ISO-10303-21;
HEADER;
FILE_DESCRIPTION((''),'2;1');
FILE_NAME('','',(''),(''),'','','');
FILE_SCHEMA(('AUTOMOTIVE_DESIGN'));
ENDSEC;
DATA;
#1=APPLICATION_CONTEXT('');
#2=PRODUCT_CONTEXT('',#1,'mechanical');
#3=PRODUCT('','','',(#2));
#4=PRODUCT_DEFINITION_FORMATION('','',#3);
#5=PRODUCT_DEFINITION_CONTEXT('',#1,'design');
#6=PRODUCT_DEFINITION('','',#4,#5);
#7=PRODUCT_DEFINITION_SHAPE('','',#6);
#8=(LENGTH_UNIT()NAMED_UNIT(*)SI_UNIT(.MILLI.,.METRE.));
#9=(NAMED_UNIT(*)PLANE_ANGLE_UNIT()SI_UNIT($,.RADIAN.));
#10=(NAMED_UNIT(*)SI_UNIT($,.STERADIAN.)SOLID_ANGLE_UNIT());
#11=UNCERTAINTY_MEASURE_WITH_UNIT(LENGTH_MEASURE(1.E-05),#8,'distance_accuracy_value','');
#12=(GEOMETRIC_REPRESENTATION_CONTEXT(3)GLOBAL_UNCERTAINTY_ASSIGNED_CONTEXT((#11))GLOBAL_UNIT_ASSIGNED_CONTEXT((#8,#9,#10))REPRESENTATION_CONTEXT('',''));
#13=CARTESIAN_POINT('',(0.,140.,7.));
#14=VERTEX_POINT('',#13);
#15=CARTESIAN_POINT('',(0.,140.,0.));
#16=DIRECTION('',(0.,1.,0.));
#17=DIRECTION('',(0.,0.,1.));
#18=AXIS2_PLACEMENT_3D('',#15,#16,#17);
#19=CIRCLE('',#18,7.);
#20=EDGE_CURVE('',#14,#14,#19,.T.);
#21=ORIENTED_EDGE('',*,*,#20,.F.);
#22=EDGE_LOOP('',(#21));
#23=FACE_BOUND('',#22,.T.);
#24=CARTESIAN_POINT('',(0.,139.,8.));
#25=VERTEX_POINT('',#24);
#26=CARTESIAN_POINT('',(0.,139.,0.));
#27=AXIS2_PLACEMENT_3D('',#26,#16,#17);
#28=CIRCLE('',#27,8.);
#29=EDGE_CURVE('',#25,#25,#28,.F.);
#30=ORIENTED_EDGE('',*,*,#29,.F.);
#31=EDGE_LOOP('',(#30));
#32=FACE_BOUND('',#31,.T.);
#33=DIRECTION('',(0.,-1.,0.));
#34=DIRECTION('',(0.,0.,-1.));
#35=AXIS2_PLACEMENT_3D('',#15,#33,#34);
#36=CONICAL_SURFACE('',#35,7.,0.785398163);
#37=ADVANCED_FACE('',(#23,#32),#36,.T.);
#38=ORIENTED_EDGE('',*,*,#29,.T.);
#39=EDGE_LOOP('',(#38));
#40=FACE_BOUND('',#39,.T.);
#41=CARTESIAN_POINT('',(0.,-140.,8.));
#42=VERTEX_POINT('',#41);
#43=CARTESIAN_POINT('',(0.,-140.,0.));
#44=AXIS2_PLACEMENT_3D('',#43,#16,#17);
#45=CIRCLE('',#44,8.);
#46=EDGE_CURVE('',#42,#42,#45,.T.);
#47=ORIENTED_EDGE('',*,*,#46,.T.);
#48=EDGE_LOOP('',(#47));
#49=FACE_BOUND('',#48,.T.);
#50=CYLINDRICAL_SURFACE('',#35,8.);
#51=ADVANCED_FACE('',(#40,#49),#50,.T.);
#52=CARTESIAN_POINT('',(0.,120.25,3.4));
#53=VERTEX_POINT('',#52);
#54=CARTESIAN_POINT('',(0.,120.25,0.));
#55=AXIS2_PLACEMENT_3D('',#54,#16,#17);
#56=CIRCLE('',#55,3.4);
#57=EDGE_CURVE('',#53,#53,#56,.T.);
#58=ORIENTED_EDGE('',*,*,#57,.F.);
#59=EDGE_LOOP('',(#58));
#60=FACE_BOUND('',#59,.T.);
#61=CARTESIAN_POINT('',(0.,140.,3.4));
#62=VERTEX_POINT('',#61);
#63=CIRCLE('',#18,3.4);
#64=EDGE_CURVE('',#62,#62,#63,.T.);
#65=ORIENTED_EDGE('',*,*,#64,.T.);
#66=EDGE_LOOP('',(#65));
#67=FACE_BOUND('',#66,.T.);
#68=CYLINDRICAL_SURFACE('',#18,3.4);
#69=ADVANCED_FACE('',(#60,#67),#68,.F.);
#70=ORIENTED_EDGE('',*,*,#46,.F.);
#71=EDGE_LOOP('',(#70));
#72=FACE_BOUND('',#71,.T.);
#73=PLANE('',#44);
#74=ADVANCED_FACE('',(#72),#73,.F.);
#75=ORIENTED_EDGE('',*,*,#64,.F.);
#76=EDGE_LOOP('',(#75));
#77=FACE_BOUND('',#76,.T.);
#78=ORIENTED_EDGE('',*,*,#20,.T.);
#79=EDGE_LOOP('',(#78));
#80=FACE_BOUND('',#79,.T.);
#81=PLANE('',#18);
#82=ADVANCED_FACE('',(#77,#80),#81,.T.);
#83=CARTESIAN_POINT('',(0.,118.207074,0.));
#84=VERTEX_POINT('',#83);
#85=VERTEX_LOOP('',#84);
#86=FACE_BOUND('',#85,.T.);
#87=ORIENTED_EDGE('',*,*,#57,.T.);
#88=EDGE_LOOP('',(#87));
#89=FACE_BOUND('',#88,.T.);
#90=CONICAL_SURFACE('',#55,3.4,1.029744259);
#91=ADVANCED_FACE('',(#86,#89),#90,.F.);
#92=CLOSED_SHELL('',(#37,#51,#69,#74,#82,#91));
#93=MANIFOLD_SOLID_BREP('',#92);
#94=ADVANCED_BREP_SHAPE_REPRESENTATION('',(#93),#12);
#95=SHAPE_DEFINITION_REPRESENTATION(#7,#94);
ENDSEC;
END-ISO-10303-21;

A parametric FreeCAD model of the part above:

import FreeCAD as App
import Part
import Sketcher
Q = App.Units.Quantity


def edges_at(feature, points):
    """Names of the edges that pass closest to the given points."""
    edges = feature.Shape.Edges
    near = lambda p: min(range(len(edges)), key=lambda i: edges[i].distToShape(Part.Vertex(*p))[0])
    return sorted({f"Edge{near(p) + 1}" for p in points})

doc = App.newDocument("Part")
params = doc.addObject("Spreadsheet::Sheet", "Params")
for row, (alias, value) in enumerate([
    ("sketch1_diameter", "16 mm"),
    ("pad1_length", "280 mm"),
    ("sketch2_diameter", "6.8 mm"),
    ("hole_diameter", "6.8 mm"),
    ("hole_depth", "19.75 mm"),
    ("chamfer_size", "1 mm"),
], start=1):
    params.set(f"A{row}", alias)
    params.set(f"B{row}", "=" + value)
    params.setAlias(f"B{row}", alias)

body = doc.addObject("PartDesign::Body", "Body")

# Sketch on XZ plane
sketch1 = body.newObject("Sketcher::SketchObject", "Sketch")
sketch1.AttachmentSupport = (doc.getObject("XZ_Plane"), [""])
sketch1.MapMode = "FlatFace"
sketch1.addGeometry(Part.Circle(App.Vector(0, 0, 0), App.Vector(0, 0, 1), 8), False)
sketch1.addConstraint([
    Sketcher.Constraint("Coincident", 0, 3, -1, 1),
    Sketcher.Constraint("Diameter", 0, Q("16 mm")),
])
sketch1.setExpression("Constraints[1]", "Params.sketch1_diameter")
pad1 = body.newObject("PartDesign::Pad", "Pad")
pad1.Profile = sketch1
pad1.setExpression("Length", "Params.pad1_length")
pad1.Midplane = True

# Sketch on XZ plane
sketch2 = body.newObject("Sketcher::SketchObject", "Sketch001")
sketch2.AttachmentSupport = (doc.getObject("XZ_Plane"), [""])
sketch2.MapMode = "FlatFace"
sketch2.AttachmentOffset = App.Placement(App.Vector(0, 0, -140), App.Rotation())
sketch2.addGeometry(Part.Circle(App.Vector(0, 0, 0), App.Vector(0, 0, 1), 3.4), False)
sketch2.addConstraint([
    Sketcher.Constraint("Coincident", 0, 3, -1, 1),
    Sketcher.Constraint("Diameter", 0, Q("6.8 mm")),
])
sketch2.setExpression("Constraints[1]", "Params.sketch2_diameter")
doc.recompute()
hole = body.newObject("PartDesign::Hole", "Hole")
hole.Profile = sketch2
hole.ThreadType = "None"
hole.setExpression("Diameter", "Params.hole_diameter")
hole.DepthType = "Dimension"
hole.setExpression("Depth", "Params.hole_depth")
hole.DrillPoint = "Angled"
hole.DrillPointAngle = 118
hole.Reversed = True
doc.recompute()

chamfer = body.newObject("PartDesign::Chamfer", "Chamfer")
chamfer.Base = (hole, edges_at(hole, [(-8, 140, 0)]))
chamfer.setExpression("Size", "Params.chamfer_size")

doc.recompute()
